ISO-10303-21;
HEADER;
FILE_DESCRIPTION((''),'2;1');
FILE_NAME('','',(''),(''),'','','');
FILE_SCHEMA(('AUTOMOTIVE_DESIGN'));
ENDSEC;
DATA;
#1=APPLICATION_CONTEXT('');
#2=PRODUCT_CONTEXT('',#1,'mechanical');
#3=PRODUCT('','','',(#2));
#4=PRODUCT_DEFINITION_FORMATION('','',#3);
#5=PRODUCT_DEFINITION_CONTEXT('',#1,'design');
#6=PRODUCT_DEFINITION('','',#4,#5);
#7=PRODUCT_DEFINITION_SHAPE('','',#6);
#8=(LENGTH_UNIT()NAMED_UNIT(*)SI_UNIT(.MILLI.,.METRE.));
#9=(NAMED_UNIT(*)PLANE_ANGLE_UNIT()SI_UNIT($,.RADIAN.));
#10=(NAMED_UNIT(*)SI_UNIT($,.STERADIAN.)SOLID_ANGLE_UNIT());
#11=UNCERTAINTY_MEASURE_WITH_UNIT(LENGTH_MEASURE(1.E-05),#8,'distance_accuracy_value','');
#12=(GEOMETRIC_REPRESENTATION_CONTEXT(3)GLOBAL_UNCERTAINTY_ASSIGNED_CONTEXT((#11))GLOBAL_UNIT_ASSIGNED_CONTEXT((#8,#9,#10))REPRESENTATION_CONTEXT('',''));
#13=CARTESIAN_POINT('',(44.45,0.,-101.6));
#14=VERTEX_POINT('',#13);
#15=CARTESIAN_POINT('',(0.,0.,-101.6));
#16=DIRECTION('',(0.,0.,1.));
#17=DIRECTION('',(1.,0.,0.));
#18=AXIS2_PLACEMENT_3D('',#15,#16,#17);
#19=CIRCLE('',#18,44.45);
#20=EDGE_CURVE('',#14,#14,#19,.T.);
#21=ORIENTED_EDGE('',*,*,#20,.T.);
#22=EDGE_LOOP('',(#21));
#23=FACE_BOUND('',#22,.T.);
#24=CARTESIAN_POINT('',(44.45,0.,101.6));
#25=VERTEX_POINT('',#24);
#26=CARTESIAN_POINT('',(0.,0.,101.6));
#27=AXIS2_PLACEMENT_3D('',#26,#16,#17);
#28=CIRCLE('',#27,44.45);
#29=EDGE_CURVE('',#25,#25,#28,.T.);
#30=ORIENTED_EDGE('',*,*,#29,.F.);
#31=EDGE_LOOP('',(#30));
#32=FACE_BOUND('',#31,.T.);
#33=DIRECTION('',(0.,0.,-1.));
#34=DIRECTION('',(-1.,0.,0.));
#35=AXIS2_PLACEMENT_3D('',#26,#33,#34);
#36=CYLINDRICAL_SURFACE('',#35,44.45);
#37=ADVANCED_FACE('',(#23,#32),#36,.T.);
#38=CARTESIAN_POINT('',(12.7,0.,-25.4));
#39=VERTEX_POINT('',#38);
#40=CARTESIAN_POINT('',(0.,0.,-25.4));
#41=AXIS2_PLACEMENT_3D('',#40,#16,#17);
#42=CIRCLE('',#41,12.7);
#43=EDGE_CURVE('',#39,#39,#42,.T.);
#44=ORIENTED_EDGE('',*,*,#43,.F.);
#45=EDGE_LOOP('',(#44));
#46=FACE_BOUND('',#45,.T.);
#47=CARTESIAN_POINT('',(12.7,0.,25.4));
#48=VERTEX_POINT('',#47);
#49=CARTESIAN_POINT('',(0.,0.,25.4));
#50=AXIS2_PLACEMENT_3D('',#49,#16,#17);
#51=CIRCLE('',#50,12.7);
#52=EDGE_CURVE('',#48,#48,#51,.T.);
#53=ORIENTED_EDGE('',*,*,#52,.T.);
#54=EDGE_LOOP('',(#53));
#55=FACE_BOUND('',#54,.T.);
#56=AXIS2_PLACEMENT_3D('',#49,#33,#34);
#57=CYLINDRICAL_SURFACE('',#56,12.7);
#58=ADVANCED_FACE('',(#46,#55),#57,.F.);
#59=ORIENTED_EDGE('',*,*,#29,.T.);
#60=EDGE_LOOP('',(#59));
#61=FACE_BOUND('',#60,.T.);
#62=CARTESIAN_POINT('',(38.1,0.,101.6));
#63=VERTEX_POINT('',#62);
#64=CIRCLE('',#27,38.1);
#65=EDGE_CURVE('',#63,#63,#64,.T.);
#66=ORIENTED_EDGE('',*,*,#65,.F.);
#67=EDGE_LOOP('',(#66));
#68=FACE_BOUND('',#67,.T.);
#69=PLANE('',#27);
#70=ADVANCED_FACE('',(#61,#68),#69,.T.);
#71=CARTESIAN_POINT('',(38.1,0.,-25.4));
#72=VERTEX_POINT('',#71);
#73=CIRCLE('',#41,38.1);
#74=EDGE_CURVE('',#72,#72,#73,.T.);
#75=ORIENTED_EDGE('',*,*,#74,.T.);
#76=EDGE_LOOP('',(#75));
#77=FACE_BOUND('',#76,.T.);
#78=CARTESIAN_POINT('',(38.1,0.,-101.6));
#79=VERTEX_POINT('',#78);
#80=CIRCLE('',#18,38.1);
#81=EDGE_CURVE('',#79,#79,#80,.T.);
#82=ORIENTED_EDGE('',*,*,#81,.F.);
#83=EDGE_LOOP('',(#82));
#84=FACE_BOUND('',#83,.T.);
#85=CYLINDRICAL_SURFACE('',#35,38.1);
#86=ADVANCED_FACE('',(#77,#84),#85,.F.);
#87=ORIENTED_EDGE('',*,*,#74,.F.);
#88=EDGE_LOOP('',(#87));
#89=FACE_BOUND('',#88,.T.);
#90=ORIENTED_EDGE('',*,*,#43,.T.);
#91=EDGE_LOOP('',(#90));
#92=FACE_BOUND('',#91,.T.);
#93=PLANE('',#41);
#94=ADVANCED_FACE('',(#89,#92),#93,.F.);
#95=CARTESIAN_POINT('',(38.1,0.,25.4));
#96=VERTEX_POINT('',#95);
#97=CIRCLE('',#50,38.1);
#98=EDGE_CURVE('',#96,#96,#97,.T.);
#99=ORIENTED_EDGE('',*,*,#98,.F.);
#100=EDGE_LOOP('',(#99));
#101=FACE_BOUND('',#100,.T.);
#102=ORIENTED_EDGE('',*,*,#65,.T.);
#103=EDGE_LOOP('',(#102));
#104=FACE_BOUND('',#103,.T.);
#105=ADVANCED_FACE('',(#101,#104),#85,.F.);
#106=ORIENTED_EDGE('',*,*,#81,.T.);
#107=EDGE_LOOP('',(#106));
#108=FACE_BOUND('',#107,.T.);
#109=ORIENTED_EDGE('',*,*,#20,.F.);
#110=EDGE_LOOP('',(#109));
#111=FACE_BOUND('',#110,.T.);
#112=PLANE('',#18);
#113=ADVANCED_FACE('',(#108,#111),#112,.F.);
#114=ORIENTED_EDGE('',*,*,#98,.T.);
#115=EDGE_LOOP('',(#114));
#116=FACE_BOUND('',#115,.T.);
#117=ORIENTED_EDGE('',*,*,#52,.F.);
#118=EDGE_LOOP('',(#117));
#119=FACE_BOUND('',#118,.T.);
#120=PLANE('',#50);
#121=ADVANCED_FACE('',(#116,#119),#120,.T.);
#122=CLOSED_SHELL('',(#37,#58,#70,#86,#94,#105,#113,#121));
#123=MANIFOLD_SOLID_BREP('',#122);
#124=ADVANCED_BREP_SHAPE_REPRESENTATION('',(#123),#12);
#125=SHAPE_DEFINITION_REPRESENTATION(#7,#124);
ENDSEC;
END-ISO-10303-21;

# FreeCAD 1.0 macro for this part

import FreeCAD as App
import Part
import Sketcher
Q = App.Units.Quantity

doc = App.newDocument("Part")
body = doc.addObject("PartDesign::Body", "Body")

# Sketch on XY plane
sketch1 = body.newObject("Sketcher::SketchObject", "Sketch")
sketch1.AttachmentSupport = (doc.getObject("XY_Plane"), [""])
sketch1.MapMode = "FlatFace"
sketch1.addGeometry(Part.Circle(App.Vector(0, 0, 0), App.Vector(0, 0, 1), 44), False)
sketch1.addGeometry(Part.Circle(App.Vector(0, 0, 0), App.Vector(0, 0, 1), 38), False)
sketch1.addConstraint(Sketcher.Constraint("Coincident", 0, 3, -1, 1))
sketch1.addConstraint(Sketcher.Constraint("Coincident", 1, 3, -1, 1))
sketch1.addConstraint(Sketcher.Constraint("Diameter", 1, Q("3 in")))
sketch1.addConstraint(Sketcher.Constraint("Diameter", 0, Q("3.5 in")))
pad1 = body.newObject("PartDesign::Pad", "Pad")
pad1.Profile = sketch1
pad1.Length = Q("8 in")
pad1.Midplane = True

# Sketch on XY plane
sketch2 = body.newObject("Sketcher::SketchObject", "Sketch001")
sketch2.AttachmentSupport = (doc.getObject("XY_Plane"), [""])
sketch2.MapMode = "FlatFace"
sketch2.addGeometry(Part.Circle(App.Vector(0, 0, 0), App.Vector(0, 0, 1), 38), False)
sketch2.addGeometry(Part.Circle(App.Vector(0, 0, 0), App.Vector(0, 0, 1), 13), False)
sketch2.addConstraint(Sketcher.Constraint("Coincident", 0, 3, -1, 1))
sketch2.addConstraint(Sketcher.Constraint("Coincident", 1, 3, -1, 1))
sketch2.addConstraint(Sketcher.Constraint("Diameter", 0, Q("3 in")))
sketch2.addConstraint(Sketcher.Constraint("Diameter", 1, Q("1 in")))
pad2 = body.newObject("PartDesign::Pad", "Pad001")
pad2.Profile = sketch2
pad2.Length = Q("2 in")
pad2.Midplane = True

doc.recompute()
